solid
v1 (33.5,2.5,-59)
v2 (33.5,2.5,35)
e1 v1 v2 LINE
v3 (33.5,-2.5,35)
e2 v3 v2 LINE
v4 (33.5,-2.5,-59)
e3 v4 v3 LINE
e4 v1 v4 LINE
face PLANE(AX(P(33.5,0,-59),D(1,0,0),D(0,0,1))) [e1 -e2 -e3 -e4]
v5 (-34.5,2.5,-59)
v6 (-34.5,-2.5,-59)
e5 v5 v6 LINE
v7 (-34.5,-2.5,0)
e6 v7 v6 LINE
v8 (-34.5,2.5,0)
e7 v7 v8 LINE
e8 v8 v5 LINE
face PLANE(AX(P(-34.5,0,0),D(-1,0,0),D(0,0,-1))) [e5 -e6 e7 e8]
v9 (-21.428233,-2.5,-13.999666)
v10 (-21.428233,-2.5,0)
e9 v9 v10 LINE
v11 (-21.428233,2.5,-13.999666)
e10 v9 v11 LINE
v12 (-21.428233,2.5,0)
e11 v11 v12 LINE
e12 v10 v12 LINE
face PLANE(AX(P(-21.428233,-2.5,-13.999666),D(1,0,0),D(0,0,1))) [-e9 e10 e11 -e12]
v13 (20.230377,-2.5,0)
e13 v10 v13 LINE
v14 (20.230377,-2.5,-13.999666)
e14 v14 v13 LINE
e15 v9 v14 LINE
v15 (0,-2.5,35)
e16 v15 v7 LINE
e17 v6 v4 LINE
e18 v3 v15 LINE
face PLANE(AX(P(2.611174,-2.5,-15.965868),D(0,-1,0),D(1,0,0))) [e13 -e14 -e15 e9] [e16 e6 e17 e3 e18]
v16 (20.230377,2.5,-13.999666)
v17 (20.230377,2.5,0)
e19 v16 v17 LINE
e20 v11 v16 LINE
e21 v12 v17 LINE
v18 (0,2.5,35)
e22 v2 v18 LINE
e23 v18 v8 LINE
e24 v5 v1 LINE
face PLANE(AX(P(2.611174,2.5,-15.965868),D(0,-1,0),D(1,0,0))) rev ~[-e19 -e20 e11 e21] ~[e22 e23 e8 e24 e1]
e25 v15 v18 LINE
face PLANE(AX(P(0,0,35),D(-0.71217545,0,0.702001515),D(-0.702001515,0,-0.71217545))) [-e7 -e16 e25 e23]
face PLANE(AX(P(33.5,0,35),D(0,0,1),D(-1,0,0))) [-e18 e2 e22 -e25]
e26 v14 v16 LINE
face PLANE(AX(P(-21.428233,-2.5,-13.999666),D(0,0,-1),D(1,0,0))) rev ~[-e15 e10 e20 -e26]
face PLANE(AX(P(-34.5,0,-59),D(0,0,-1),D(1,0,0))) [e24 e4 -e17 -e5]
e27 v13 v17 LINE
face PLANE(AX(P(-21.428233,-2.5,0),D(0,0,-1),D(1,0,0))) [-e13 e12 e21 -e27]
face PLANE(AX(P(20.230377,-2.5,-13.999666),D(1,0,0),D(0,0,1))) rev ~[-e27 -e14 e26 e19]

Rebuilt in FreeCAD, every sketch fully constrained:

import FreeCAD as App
import Part
import Sketcher
Q = App.Units.Quantity

doc = App.newDocument("Part")
body = doc.addObject("PartDesign::Body", "Body")

# Sketch on XZ plane
sketch1 = body.newObject("Sketcher::SketchObject", "Sketch")
sketch1.AttachmentSupport = (doc.getObject("XZ_Plane"), [""])
sketch1.MapMode = "FlatFace"
sketch1.addGeometry(Part.LineSegment(App.Vector(-34, 0, 0), App.Vector(-34, -59, 0)), False)
sketch1.addGeometry(Part.LineSegment(App.Vector(-34, -59, 0), App.Vector(34, -59, 0)), False)
sketch1.addGeometry(Part.LineSegment(App.Vector(34, -59, 0), App.Vector(34, 35, 0)), False)
sketch1.addGeometry(Part.LineSegment(App.Vector(34, 35, 0), App.Vector(0, 35, 0)), False)
sketch1.addGeometry(Part.LineSegment(App.Vector(0, 35, 0), App.Vector(-34, 0, 0)), False)
sketch1.addConstraint(Sketcher.Constraint("Coincident", 0, 2, 1, 1))
sketch1.addConstraint(Sketcher.Constraint("Coincident", 1, 2, 2, 1))
sketch1.addConstraint(Sketcher.Constraint("Coincident", 2, 2, 3, 1))
sketch1.addConstraint(Sketcher.Constraint("Coincident", 3, 2, 4, 1))
sketch1.addConstraint(Sketcher.Constraint("Coincident", 4, 2, 0, 1))
sketch1.addConstraint(Sketcher.Constraint("Vertical", 0))
sketch1.addConstraint(Sketcher.Constraint("Horizontal", 1))
sketch1.addConstraint(Sketcher.Constraint("Vertical", 2))
sketch1.addConstraint(Sketcher.Constraint("Horizontal", 3))
sketch1.addConstraint(Sketcher.Constraint("PointOnObject", 3, 2, -2))
sketch1.addConstraint(Sketcher.Constraint("PointOnObject", 4, 2, -1))
sketch1.addConstraint(Sketcher.Constraint("DistanceX", 1, 1, 1, 2, Q("68 mm")))
sketch1.addConstraint(Sketcher.Constraint("DistanceY", 0, 2, 0, 1, Q("59 mm")))
sketch1.addConstraint(Sketcher.Constraint("DistanceY", 2, 1, 2, 2, Q("94 mm")))
sketch1.addConstraint(Sketcher.Constraint("DistanceX", 3, 2, 3, 1, Q("33.5 mm")))
pad1 = body.newObject("PartDesign::Pad", "Pad")
pad1.Profile = sketch1
pad1.Length = 5
pad1.Midplane = True

# Sketch on XZ plane
sketch2 = body.newObject("Sketcher::SketchObject", "Sketch001")
sketch2.AttachmentSupport = (doc.getObject("XZ_Plane"), [""])
sketch2.MapMode = "FlatFace"
sketch2.AttachmentOffset = App.Placement(App.Vector(0, 0, 2.5), App.Rotation())
sketch2.addGeometry(Part.LineSegment(App.Vector(-21, 0, 0), App.Vector(-21, -14, 0)), False)
sketch2.addGeometry(Part.LineSegment(App.Vector(-21, -14, 0), App.Vector(20, -14, 0)), False)
sketch2.addGeometry(Part.LineSegment(App.Vector(20, -14, 0), App.Vector(20, 0, 0)), False)
sketch2.addGeometry(Part.LineSegment(App.Vector(20, 0, 0), App.Vector(-21, 0, 0)), False)
sketch2.addConstraint(Sketcher.Constraint("Coincident", 0, 2, 1, 1))
sketch2.addConstraint(Sketcher.Constraint("Coincident", 1, 2, 2, 1))
sketch2.addConstraint(Sketcher.Constraint("Coincident", 2, 2, 3, 1))
sketch2.addConstraint(Sketcher.Constraint("Coincident", 3, 2, 0, 1))
sketch2.addConstraint(Sketcher.Constraint("Vertical", 0))
sketch2.addConstraint(Sketcher.Constraint("Horizontal", 1))
sketch2.addConstraint(Sketcher.Constraint("Vertical", 2))
sketch2.addConstraint(Sketcher.Constraint("Horizontal", 3))
sketch2.addConstraint(Sketcher.Constraint("PointOnObject", 2, 2, -1))
sketch2.addConstraint(Sketcher.Constraint("DistanceX", 1, 1, 1, 2, Q("41.65861 mm")))
sketch2.addConstraint(Sketcher.Constraint("DistanceY", 0, 2, 0, 1, Q("13.999665 mm")))
sketch2.addConstraint(Sketcher.Constraint("DistanceX", 0, 2, -1, 1, Q("21.428233 mm")))
pocket1 = body.newObject("PartDesign::Pocket", "Pocket")
pocket1.Profile = sketch2
pocket1.Length = 25

doc.recompute()
